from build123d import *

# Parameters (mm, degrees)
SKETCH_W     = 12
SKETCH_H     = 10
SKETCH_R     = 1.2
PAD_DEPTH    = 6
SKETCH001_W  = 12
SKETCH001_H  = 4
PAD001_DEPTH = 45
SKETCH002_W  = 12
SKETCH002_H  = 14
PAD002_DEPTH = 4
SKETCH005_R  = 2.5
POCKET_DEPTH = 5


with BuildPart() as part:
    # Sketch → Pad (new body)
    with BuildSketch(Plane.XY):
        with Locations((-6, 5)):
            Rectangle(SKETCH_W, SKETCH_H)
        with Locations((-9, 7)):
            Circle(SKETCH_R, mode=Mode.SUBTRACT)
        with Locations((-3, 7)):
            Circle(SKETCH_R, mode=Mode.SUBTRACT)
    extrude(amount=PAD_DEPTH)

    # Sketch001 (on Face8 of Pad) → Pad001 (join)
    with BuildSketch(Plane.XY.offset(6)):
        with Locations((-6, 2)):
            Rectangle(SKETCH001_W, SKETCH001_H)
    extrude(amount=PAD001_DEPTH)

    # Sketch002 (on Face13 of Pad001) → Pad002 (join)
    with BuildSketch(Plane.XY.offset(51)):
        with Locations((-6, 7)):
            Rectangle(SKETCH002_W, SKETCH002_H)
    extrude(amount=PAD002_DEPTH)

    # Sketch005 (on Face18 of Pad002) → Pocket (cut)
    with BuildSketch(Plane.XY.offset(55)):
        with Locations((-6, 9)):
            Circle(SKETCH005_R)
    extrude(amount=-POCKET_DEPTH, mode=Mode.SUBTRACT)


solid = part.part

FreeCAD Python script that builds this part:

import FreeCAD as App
import Part
import Sketcher
from FreeCAD import Vector

doc = App.newDocument("Part")
body = doc.addObject("PartDesign::Body", "Body")

# Sketch on XY plane
sketch1 = body.newObject("Sketcher::SketchObject", "Sketch")
sketch1.AttachmentSupport = (doc.getObject("XY_Plane"), [""])
sketch1.MapMode = "FlatFace"
sketch1.addGeometry([
    Part.LineSegment(Vector(-12, 10, 0), Vector(-12, 0, 0)),  # 0
    Part.LineSegment(Vector(-12, 0, 0), Vector(0, 0, 0)),  # 1
    Part.LineSegment(Vector(0, 0, 0), Vector(0, 10, 0)),  # 2
    Part.LineSegment(Vector(0, 10, 0), Vector(-12, 10, 0)),  # 3
    Part.Circle(Vector(-9, 7, 0), Vector(0, 0, 1), 1.2),  # 4
    Part.Circle(Vector(-3, 7, 0), Vector(0, 0, 1), 1.2),  # 5
], False)
sketch1.addConstraint([
    Sketcher.Constraint("Coincident", 0, 2, 1, 1),
    Sketcher.Constraint("Coincident", 1, 2, 2, 1),
    Sketcher.Constraint("Coincident", 2, 2, 3, 1),
    Sketcher.Constraint("Coincident", 3, 2, 0, 1),
    Sketcher.Constraint("Vertical", 0),
    Sketcher.Constraint("Horizontal", 1),
    Sketcher.Constraint("Vertical", 2),
    Sketcher.Constraint("Horizontal", 3),
    Sketcher.Constraint("Coincident", 1, 2, -1, 1),
    Sketcher.Constraint("Equal", 4, 5),
    Sketcher.Constraint("Horizontal", 4, 3, 5, 3),
    Sketcher.Constraint("Diameter", 4, 2.4),
    Sketcher.Constraint("DistanceX", 1, 1, 1, 2, 12.0),
    Sketcher.Constraint("DistanceY", 0, 2, 0, 1, 10.0),
    Sketcher.Constraint("DistanceX", 4, 3, -1, 1, 9.0),
    Sketcher.Constraint("DistanceY", -1, 1, 4, 3, 7.0),
    Sketcher.Constraint("DistanceX", 5, 3, -1, 1, 3.0),
])
pad1 = body.newObject("PartDesign::Pad", "Pad")
pad1.Profile = sketch1
pad1.Length = 6

# Sketch on XY plane
sketch2 = body.newObject("Sketcher::SketchObject", "Sketch001")
sketch2.AttachmentSupport = (doc.getObject("XY_Plane"), [""])
sketch2.MapMode = "FlatFace"
sketch2.AttachmentOffset = App.Placement(Vector(0, 0, 6), App.Rotation())
sketch2.addGeometry([
    Part.LineSegment(Vector(-12, 4, 0), Vector(-12, 0, 0)),
    Part.LineSegment(Vector(-12, 0, 0), Vector(0, 0, 0)),
    Part.LineSegment(Vector(0, 0, 0), Vector(0, 4, 0)),
    Part.LineSegment(Vector(0, 4, 0), Vector(-12, 4, 0)),
], False)
sketch2.addConstraint([
    Sketcher.Constraint("Coincident", 0, 2, 1, 1),
    Sketcher.Constraint("Coincident", 1, 2, 2, 1),
    Sketcher.Constraint("Coincident", 2, 2, 3, 1),
    Sketcher.Constraint("Coincident", 3, 2, 0, 1),
    Sketcher.Constraint("Vertical", 0),
    Sketcher.Constraint("Horizontal", 1),
    Sketcher.Constraint("Vertical", 2),
    Sketcher.Constraint("Horizontal", 3),
    Sketcher.Constraint("Coincident", 1, 2, -1, 1),
    Sketcher.Constraint("DistanceX", 1, 1, 1, 2, 12.0),
    Sketcher.Constraint("DistanceY", 0, 2, 0, 1, 4.0),
])
pad2 = body.newObject("PartDesign::Pad", "Pad001")
pad2.Profile = sketch2
pad2.Length = 45

# Sketch on XY plane
sketch3 = body.newObject("Sketcher::SketchObject", "Sketch002")
sketch3.AttachmentSupport = (doc.getObject("XY_Plane"), [""])
sketch3.MapMode = "FlatFace"
sketch3.AttachmentOffset = App.Placement(Vector(0, 0, 51), App.Rotation())
sketch3.addGeometry([
    Part.LineSegment(Vector(-12, 14, 0), Vector(-12, 0, 0)),
    Part.LineSegment(Vector(-12, 0, 0), Vector(0, 0, 0)),
    Part.LineSegment(Vector(0, 0, 0), Vector(0, 14, 0)),
    Part.LineSegment(Vector(0, 14, 0), Vector(-12, 14, 0)),
], False)
sketch3.addConstraint([
    Sketcher.Constraint("Coincident", 0, 2, 1, 1),
    Sketcher.Constraint("Coincident", 1, 2, 2, 1),
    Sketcher.Constraint("Coincident", 2, 2, 3, 1),
    Sketcher.Constraint("Coincident", 3, 2, 0, 1),
    Sketcher.Constraint("Vertical", 0),
    Sketcher.Constraint("Horizontal", 1),
    Sketcher.Constraint("Vertical", 2),
    Sketcher.Constraint("Horizontal", 3),
    Sketcher.Constraint("Coincident", 1, 2, -1, 1),
    Sketcher.Constraint("DistanceX", 1, 1, 1, 2, 12.0),
    Sketcher.Constraint("DistanceY", 0, 2, 0, 1, 14.0),
])
pad3 = body.newObject("PartDesign::Pad", "Pad002")
pad3.Profile = sketch3
pad3.Length = 4

# Sketch on XY plane
sketch4 = body.newObject("Sketcher::SketchObject", "Sketch003")
sketch4.AttachmentSupport = (doc.getObject("XY_Plane"), [""])
sketch4.MapMode = "FlatFace"
sketch4.AttachmentOffset = App.Placement(Vector(0, 0, 55), App.Rotation())
sketch4.addGeometry(Part.Circle(Vector(-6, 9, 0), Vector(0, 0, 1), 2.5), False)
sketch4.addConstraint([
    Sketcher.Constraint("Diameter", 0, 5.0),
    Sketcher.Constraint("DistanceX", 0, 3, -1, 1, 6.0),
    Sketcher.Constraint("DistanceY", -1, 1, 0, 3, 9.0),
])
pocket1 = body.newObject("PartDesign::Pocket", "Pocket")
pocket1.Profile = sketch4
pocket1.Length = 5

doc.recompute()
